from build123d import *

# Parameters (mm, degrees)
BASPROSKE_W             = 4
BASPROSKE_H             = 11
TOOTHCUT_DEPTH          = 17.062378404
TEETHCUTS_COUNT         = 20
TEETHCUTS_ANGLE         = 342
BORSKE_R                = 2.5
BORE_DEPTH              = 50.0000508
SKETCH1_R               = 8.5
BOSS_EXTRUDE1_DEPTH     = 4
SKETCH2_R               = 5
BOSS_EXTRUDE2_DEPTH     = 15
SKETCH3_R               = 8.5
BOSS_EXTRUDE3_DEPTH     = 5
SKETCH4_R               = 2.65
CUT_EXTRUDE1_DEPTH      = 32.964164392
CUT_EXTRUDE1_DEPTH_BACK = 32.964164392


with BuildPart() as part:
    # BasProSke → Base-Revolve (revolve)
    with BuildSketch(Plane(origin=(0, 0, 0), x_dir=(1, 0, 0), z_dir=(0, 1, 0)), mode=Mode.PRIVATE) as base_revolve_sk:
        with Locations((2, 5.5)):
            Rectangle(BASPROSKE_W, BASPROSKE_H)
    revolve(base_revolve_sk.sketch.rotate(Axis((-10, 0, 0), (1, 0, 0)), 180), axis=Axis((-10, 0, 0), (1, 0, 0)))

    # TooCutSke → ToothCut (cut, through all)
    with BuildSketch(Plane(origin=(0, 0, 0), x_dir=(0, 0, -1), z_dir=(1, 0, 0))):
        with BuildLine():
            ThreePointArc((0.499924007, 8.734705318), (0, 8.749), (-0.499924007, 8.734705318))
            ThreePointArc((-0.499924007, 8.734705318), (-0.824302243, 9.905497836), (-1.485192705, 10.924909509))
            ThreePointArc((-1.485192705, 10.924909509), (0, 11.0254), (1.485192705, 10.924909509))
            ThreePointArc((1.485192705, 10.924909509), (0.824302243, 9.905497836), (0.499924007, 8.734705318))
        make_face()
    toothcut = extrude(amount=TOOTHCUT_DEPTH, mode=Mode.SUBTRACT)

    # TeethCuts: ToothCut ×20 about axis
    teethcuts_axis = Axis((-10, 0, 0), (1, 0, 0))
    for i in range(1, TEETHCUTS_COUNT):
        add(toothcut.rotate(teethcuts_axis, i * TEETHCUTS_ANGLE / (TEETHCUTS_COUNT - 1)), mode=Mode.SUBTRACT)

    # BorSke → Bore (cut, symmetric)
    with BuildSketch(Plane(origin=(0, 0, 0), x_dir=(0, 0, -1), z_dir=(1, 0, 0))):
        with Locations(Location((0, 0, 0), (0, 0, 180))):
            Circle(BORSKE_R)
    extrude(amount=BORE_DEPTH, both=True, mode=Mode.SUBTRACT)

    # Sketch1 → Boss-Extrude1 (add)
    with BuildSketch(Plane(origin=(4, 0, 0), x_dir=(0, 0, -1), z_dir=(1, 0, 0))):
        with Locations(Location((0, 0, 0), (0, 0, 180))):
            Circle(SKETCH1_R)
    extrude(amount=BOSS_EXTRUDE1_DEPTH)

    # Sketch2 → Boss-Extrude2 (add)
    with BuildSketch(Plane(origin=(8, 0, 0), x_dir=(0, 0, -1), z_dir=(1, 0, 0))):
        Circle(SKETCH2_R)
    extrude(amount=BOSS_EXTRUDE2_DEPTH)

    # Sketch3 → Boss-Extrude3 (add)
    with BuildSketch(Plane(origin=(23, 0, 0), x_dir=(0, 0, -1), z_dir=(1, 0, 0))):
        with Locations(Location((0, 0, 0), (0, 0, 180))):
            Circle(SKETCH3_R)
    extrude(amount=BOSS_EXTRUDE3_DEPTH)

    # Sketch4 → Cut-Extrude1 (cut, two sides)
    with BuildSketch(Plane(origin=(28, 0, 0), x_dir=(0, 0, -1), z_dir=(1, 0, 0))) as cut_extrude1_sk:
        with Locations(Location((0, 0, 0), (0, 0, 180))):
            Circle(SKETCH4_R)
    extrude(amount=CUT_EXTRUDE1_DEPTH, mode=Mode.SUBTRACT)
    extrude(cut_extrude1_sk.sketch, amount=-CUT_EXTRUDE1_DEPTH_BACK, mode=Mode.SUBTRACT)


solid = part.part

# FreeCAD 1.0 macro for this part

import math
import FreeCAD as App
import Part
import Sketcher
Q = App.Units.Quantity

doc = App.newDocument("Part")
body = doc.addObject("PartDesign::Body", "Body")

# Sketch on XZ plane
sketch1 = doc.addObject("Sketcher::SketchObject", "Sketch")
body.addObject(sketch1)
sketch1.AttachmentSupport = (doc.XZ_Plane, [""])
sketch1.MapMode = "FlatFace"
sketch1.addGeometry([
    Part.LineSegment(App.Vector(0, -11, 0), App.Vector(0, 0, 0)),
    Part.LineSegment(App.Vector(0, 0, 0), App.Vector(4, 0, 0)),
    Part.LineSegment(App.Vector(4, 0, 0), App.Vector(4, -11, 0)),
    Part.LineSegment(App.Vector(4, -11, 0), App.Vector(0, -11, 0)),
], False)
sketch1.addConstraint([
    Sketcher.Constraint("Coincident", 0, 2, 1, 1),
    Sketcher.Constraint("Coincident", 1, 2, 2, 1),
    Sketcher.Constraint("Coincident", 2, 2, 3, 1),
    Sketcher.Constraint("Coincident", 3, 2, 0, 1),
    Sketcher.Constraint("Vertical", 0),
    Sketcher.Constraint("Horizontal", 1),
    Sketcher.Constraint("Vertical", 2),
    Sketcher.Constraint("Horizontal", 3),
    Sketcher.Constraint("Coincident", 0, 2, -1, 1),
    Sketcher.Constraint("DistanceX", 1, 1, 1, 2, Q("4 mm")),
    Sketcher.Constraint("DistanceY", 0, 1, 0, 2, Q("11 mm")),
])
revolution = doc.addObject("PartDesign::Revolution", "Revolution")
body.addObject(revolution)
revolution.Profile = sketch1
revolution.ReferenceAxis = (sketch1, ["H_Axis"])
revolution.Angle = 360

# Sketch on YZ plane
sketch2 = doc.addObject("Sketcher::SketchObject", "Sketch001")
body.addObject(sketch2)
sketch2.AttachmentSupport = (doc.YZ_Plane, [""])
sketch2.MapMode = "FlatFace"
sketch2.addGeometry([
    Part.ArcOfCircle(Part.Circle(App.Vector(0, 0, 0), App.Vector(0, 0, 1), 8.7), math.radians(-3.28), math.radians(3.28)),
    Part.ArcOfCircle(Part.Circle(App.Vector(8.3, -4.5, 0), App.Vector(0, 0, 1), 4), math.radians(48), math.radians(83)),
    Part.ArcOfCircle(Part.Circle(App.Vector(0, 0, 0), App.Vector(0, 0, 1), 11), math.radians(-7.74), math.radians(7.74)),
    Part.ArcOfCircle(Part.Circle(App.Vector(8.3, 4.5, 0), App.Vector(0, 0, 1), 4), math.radians(-83), math.radians(-48)),
], False)
sketch2.addConstraint([
    Sketcher.Constraint("Coincident", 0, 1, 1, 2),
    Sketcher.Constraint("Coincident", 1, 1, 2, 1),
    Sketcher.Constraint("Coincident", 2, 2, 3, 2),
    Sketcher.Constraint("Coincident", 3, 1, 0, 2),
    Sketcher.Constraint("Coincident", 0, 3, -1, 1),
    Sketcher.Constraint("Coincident", 2, 3, -1, 1),
    Sketcher.Constraint("Equal", 1, 3),
    Sketcher.Constraint("Symmetric", 1, 3, 3, 3, -1),
    Sketcher.Constraint("Radius", 1, Q("4 mm")),
    Sketcher.Constraint("Radius", 0, Q("8.749 mm")),
    Sketcher.Constraint("Radius", 2, Q("11.0254 mm")),
    Sketcher.Constraint("DistanceY", 1, 3, -1, 1, Q("4.47219 mm")),
    Sketcher.Constraint("DistanceX", -1, 1, 1, 1, Q("10.92491 mm")),
])
pocket1 = doc.addObject("PartDesign::Pocket", "Pocket")
body.addObject(pocket1)
pocket1.Profile = sketch2
pocket1.Type = "ThroughAll"
pocket1.Reversed = True
doc.recompute()

polarpattern = doc.addObject("PartDesign::PolarPattern", "PolarPattern")
body.addObject(polarpattern)
polarpattern.Originals = [pocket1]
polarpattern.Axis = (doc.X_Axis, [""])
polarpattern.Angle = 360
polarpattern.Occurrences = 20
body.Tip = polarpattern

# Sketch on YZ plane
sketch3 = doc.addObject("Sketcher::SketchObject", "Sketch002")
body.addObject(sketch3)
sketch3.AttachmentSupport = (doc.YZ_Plane, [""])
sketch3.MapMode = "FlatFace"
sketch3.addGeometry(Part.Circle(App.Vector(0, 0, 0), App.Vector(0, 0, 1), 2.5), False)
sketch3.addConstraint([
    Sketcher.Constraint("Coincident", 0, 3, -1, 1),
    Sketcher.Constraint("Diameter", 0, Q("5 mm")),
])
pocket2 = doc.addObject("PartDesign::Pocket", "Pocket001")
body.addObject(pocket2)
pocket2.Profile = sketch3
pocket2.Length = 100.000102
pocket2.Midplane = True

# Sketch on YZ plane
sketch4 = doc.addObject("Sketcher::SketchObject", "Sketch003")
body.addObject(sketch4)
sketch4.AttachmentSupport = (doc.YZ_Plane, [""])
sketch4.MapMode = "FlatFace"
sketch4.AttachmentOffset = App.Placement(App.Vector(0, 0, 4), App.Rotation())
sketch4.addGeometry(Part.Circle(App.Vector(0, 0, 0), App.Vector(0, 0, 1), 8), False)
sketch4.addConstraint([
    Sketcher.Constraint("Coincident", 0, 3, -1, 1),
    Sketcher.Constraint("Diameter", 0, Q("17 mm")),
])
pad1 = doc.addObject("PartDesign::Pad", "Pad")
body.addObject(pad1)
pad1.Profile = sketch4
pad1.Length = 4

# Sketch on YZ plane
sketch5 = doc.addObject("Sketcher::SketchObject", "Sketch004")
body.addObject(sketch5)
sketch5.AttachmentSupport = (doc.YZ_Plane, [""])
sketch5.MapMode = "FlatFace"
sketch5.AttachmentOffset = App.Placement(App.Vector(0, 0, 8), App.Rotation())
sketch5.addGeometry(Part.Circle(App.Vector(0, 0, 0), App.Vector(0, 0, 1), 5), False)
sketch5.addConstraint([
    Sketcher.Constraint("Coincident", 0, 3, -1, 1),
    Sketcher.Constraint("Diameter", 0, Q("10 mm")),
])
pad2 = doc.addObject("PartDesign::Pad", "Pad001")
body.addObject(pad2)
pad2.Profile = sketch5
pad2.Length = 15

# Sketch on YZ plane
sketch6 = doc.addObject("Sketcher::SketchObject", "Sketch005")
body.addObject(sketch6)
sketch6.AttachmentSupport = (doc.YZ_Plane, [""])
sketch6.MapMode = "FlatFace"
sketch6.AttachmentOffset = App.Placement(App.Vector(0, 0, 23), App.Rotation())
sketch6.addGeometry(Part.Circle(App.Vector(0, 0, 0), App.Vector(0, 0, 1), 8), False)
sketch6.addConstraint([
    Sketcher.Constraint("Coincident", 0, 3, -1, 1),
    Sketcher.Constraint("Diameter", 0, Q("17 mm")),
])
pad3 = doc.addObject("PartDesign::Pad", "Pad002")
body.addObject(pad3)
pad3.Profile = sketch6
pad3.Length = 5

# Sketch on YZ plane
sketch7 = doc.addObject("Sketcher::SketchObject", "Sketch006")
body.addObject(sketch7)
sketch7.AttachmentSupport = (doc.YZ_Plane, [""])
sketch7.MapMode = "FlatFace"
sketch7.AttachmentOffset = App.Placement(App.Vector(0, 0, 28), App.Rotation())
sketch7.addGeometry(Part.Circle(App.Vector(0, 0, 0), App.Vector(0, 0, 1), 2.6), False)
sketch7.addConstraint([
    Sketcher.Constraint("Coincident", 0, 3, -1, 1),
    Sketcher.Constraint("Diameter", 0, Q("5.3 mm")),
])
pocket3 = doc.addObject("PartDesign::Pocket", "Pocket002")
body.addObject(pocket3)
pocket3.Profile = sketch7
pocket3.Type = "ThroughAll"
pocket3.Midplane = True

doc.recompute()
